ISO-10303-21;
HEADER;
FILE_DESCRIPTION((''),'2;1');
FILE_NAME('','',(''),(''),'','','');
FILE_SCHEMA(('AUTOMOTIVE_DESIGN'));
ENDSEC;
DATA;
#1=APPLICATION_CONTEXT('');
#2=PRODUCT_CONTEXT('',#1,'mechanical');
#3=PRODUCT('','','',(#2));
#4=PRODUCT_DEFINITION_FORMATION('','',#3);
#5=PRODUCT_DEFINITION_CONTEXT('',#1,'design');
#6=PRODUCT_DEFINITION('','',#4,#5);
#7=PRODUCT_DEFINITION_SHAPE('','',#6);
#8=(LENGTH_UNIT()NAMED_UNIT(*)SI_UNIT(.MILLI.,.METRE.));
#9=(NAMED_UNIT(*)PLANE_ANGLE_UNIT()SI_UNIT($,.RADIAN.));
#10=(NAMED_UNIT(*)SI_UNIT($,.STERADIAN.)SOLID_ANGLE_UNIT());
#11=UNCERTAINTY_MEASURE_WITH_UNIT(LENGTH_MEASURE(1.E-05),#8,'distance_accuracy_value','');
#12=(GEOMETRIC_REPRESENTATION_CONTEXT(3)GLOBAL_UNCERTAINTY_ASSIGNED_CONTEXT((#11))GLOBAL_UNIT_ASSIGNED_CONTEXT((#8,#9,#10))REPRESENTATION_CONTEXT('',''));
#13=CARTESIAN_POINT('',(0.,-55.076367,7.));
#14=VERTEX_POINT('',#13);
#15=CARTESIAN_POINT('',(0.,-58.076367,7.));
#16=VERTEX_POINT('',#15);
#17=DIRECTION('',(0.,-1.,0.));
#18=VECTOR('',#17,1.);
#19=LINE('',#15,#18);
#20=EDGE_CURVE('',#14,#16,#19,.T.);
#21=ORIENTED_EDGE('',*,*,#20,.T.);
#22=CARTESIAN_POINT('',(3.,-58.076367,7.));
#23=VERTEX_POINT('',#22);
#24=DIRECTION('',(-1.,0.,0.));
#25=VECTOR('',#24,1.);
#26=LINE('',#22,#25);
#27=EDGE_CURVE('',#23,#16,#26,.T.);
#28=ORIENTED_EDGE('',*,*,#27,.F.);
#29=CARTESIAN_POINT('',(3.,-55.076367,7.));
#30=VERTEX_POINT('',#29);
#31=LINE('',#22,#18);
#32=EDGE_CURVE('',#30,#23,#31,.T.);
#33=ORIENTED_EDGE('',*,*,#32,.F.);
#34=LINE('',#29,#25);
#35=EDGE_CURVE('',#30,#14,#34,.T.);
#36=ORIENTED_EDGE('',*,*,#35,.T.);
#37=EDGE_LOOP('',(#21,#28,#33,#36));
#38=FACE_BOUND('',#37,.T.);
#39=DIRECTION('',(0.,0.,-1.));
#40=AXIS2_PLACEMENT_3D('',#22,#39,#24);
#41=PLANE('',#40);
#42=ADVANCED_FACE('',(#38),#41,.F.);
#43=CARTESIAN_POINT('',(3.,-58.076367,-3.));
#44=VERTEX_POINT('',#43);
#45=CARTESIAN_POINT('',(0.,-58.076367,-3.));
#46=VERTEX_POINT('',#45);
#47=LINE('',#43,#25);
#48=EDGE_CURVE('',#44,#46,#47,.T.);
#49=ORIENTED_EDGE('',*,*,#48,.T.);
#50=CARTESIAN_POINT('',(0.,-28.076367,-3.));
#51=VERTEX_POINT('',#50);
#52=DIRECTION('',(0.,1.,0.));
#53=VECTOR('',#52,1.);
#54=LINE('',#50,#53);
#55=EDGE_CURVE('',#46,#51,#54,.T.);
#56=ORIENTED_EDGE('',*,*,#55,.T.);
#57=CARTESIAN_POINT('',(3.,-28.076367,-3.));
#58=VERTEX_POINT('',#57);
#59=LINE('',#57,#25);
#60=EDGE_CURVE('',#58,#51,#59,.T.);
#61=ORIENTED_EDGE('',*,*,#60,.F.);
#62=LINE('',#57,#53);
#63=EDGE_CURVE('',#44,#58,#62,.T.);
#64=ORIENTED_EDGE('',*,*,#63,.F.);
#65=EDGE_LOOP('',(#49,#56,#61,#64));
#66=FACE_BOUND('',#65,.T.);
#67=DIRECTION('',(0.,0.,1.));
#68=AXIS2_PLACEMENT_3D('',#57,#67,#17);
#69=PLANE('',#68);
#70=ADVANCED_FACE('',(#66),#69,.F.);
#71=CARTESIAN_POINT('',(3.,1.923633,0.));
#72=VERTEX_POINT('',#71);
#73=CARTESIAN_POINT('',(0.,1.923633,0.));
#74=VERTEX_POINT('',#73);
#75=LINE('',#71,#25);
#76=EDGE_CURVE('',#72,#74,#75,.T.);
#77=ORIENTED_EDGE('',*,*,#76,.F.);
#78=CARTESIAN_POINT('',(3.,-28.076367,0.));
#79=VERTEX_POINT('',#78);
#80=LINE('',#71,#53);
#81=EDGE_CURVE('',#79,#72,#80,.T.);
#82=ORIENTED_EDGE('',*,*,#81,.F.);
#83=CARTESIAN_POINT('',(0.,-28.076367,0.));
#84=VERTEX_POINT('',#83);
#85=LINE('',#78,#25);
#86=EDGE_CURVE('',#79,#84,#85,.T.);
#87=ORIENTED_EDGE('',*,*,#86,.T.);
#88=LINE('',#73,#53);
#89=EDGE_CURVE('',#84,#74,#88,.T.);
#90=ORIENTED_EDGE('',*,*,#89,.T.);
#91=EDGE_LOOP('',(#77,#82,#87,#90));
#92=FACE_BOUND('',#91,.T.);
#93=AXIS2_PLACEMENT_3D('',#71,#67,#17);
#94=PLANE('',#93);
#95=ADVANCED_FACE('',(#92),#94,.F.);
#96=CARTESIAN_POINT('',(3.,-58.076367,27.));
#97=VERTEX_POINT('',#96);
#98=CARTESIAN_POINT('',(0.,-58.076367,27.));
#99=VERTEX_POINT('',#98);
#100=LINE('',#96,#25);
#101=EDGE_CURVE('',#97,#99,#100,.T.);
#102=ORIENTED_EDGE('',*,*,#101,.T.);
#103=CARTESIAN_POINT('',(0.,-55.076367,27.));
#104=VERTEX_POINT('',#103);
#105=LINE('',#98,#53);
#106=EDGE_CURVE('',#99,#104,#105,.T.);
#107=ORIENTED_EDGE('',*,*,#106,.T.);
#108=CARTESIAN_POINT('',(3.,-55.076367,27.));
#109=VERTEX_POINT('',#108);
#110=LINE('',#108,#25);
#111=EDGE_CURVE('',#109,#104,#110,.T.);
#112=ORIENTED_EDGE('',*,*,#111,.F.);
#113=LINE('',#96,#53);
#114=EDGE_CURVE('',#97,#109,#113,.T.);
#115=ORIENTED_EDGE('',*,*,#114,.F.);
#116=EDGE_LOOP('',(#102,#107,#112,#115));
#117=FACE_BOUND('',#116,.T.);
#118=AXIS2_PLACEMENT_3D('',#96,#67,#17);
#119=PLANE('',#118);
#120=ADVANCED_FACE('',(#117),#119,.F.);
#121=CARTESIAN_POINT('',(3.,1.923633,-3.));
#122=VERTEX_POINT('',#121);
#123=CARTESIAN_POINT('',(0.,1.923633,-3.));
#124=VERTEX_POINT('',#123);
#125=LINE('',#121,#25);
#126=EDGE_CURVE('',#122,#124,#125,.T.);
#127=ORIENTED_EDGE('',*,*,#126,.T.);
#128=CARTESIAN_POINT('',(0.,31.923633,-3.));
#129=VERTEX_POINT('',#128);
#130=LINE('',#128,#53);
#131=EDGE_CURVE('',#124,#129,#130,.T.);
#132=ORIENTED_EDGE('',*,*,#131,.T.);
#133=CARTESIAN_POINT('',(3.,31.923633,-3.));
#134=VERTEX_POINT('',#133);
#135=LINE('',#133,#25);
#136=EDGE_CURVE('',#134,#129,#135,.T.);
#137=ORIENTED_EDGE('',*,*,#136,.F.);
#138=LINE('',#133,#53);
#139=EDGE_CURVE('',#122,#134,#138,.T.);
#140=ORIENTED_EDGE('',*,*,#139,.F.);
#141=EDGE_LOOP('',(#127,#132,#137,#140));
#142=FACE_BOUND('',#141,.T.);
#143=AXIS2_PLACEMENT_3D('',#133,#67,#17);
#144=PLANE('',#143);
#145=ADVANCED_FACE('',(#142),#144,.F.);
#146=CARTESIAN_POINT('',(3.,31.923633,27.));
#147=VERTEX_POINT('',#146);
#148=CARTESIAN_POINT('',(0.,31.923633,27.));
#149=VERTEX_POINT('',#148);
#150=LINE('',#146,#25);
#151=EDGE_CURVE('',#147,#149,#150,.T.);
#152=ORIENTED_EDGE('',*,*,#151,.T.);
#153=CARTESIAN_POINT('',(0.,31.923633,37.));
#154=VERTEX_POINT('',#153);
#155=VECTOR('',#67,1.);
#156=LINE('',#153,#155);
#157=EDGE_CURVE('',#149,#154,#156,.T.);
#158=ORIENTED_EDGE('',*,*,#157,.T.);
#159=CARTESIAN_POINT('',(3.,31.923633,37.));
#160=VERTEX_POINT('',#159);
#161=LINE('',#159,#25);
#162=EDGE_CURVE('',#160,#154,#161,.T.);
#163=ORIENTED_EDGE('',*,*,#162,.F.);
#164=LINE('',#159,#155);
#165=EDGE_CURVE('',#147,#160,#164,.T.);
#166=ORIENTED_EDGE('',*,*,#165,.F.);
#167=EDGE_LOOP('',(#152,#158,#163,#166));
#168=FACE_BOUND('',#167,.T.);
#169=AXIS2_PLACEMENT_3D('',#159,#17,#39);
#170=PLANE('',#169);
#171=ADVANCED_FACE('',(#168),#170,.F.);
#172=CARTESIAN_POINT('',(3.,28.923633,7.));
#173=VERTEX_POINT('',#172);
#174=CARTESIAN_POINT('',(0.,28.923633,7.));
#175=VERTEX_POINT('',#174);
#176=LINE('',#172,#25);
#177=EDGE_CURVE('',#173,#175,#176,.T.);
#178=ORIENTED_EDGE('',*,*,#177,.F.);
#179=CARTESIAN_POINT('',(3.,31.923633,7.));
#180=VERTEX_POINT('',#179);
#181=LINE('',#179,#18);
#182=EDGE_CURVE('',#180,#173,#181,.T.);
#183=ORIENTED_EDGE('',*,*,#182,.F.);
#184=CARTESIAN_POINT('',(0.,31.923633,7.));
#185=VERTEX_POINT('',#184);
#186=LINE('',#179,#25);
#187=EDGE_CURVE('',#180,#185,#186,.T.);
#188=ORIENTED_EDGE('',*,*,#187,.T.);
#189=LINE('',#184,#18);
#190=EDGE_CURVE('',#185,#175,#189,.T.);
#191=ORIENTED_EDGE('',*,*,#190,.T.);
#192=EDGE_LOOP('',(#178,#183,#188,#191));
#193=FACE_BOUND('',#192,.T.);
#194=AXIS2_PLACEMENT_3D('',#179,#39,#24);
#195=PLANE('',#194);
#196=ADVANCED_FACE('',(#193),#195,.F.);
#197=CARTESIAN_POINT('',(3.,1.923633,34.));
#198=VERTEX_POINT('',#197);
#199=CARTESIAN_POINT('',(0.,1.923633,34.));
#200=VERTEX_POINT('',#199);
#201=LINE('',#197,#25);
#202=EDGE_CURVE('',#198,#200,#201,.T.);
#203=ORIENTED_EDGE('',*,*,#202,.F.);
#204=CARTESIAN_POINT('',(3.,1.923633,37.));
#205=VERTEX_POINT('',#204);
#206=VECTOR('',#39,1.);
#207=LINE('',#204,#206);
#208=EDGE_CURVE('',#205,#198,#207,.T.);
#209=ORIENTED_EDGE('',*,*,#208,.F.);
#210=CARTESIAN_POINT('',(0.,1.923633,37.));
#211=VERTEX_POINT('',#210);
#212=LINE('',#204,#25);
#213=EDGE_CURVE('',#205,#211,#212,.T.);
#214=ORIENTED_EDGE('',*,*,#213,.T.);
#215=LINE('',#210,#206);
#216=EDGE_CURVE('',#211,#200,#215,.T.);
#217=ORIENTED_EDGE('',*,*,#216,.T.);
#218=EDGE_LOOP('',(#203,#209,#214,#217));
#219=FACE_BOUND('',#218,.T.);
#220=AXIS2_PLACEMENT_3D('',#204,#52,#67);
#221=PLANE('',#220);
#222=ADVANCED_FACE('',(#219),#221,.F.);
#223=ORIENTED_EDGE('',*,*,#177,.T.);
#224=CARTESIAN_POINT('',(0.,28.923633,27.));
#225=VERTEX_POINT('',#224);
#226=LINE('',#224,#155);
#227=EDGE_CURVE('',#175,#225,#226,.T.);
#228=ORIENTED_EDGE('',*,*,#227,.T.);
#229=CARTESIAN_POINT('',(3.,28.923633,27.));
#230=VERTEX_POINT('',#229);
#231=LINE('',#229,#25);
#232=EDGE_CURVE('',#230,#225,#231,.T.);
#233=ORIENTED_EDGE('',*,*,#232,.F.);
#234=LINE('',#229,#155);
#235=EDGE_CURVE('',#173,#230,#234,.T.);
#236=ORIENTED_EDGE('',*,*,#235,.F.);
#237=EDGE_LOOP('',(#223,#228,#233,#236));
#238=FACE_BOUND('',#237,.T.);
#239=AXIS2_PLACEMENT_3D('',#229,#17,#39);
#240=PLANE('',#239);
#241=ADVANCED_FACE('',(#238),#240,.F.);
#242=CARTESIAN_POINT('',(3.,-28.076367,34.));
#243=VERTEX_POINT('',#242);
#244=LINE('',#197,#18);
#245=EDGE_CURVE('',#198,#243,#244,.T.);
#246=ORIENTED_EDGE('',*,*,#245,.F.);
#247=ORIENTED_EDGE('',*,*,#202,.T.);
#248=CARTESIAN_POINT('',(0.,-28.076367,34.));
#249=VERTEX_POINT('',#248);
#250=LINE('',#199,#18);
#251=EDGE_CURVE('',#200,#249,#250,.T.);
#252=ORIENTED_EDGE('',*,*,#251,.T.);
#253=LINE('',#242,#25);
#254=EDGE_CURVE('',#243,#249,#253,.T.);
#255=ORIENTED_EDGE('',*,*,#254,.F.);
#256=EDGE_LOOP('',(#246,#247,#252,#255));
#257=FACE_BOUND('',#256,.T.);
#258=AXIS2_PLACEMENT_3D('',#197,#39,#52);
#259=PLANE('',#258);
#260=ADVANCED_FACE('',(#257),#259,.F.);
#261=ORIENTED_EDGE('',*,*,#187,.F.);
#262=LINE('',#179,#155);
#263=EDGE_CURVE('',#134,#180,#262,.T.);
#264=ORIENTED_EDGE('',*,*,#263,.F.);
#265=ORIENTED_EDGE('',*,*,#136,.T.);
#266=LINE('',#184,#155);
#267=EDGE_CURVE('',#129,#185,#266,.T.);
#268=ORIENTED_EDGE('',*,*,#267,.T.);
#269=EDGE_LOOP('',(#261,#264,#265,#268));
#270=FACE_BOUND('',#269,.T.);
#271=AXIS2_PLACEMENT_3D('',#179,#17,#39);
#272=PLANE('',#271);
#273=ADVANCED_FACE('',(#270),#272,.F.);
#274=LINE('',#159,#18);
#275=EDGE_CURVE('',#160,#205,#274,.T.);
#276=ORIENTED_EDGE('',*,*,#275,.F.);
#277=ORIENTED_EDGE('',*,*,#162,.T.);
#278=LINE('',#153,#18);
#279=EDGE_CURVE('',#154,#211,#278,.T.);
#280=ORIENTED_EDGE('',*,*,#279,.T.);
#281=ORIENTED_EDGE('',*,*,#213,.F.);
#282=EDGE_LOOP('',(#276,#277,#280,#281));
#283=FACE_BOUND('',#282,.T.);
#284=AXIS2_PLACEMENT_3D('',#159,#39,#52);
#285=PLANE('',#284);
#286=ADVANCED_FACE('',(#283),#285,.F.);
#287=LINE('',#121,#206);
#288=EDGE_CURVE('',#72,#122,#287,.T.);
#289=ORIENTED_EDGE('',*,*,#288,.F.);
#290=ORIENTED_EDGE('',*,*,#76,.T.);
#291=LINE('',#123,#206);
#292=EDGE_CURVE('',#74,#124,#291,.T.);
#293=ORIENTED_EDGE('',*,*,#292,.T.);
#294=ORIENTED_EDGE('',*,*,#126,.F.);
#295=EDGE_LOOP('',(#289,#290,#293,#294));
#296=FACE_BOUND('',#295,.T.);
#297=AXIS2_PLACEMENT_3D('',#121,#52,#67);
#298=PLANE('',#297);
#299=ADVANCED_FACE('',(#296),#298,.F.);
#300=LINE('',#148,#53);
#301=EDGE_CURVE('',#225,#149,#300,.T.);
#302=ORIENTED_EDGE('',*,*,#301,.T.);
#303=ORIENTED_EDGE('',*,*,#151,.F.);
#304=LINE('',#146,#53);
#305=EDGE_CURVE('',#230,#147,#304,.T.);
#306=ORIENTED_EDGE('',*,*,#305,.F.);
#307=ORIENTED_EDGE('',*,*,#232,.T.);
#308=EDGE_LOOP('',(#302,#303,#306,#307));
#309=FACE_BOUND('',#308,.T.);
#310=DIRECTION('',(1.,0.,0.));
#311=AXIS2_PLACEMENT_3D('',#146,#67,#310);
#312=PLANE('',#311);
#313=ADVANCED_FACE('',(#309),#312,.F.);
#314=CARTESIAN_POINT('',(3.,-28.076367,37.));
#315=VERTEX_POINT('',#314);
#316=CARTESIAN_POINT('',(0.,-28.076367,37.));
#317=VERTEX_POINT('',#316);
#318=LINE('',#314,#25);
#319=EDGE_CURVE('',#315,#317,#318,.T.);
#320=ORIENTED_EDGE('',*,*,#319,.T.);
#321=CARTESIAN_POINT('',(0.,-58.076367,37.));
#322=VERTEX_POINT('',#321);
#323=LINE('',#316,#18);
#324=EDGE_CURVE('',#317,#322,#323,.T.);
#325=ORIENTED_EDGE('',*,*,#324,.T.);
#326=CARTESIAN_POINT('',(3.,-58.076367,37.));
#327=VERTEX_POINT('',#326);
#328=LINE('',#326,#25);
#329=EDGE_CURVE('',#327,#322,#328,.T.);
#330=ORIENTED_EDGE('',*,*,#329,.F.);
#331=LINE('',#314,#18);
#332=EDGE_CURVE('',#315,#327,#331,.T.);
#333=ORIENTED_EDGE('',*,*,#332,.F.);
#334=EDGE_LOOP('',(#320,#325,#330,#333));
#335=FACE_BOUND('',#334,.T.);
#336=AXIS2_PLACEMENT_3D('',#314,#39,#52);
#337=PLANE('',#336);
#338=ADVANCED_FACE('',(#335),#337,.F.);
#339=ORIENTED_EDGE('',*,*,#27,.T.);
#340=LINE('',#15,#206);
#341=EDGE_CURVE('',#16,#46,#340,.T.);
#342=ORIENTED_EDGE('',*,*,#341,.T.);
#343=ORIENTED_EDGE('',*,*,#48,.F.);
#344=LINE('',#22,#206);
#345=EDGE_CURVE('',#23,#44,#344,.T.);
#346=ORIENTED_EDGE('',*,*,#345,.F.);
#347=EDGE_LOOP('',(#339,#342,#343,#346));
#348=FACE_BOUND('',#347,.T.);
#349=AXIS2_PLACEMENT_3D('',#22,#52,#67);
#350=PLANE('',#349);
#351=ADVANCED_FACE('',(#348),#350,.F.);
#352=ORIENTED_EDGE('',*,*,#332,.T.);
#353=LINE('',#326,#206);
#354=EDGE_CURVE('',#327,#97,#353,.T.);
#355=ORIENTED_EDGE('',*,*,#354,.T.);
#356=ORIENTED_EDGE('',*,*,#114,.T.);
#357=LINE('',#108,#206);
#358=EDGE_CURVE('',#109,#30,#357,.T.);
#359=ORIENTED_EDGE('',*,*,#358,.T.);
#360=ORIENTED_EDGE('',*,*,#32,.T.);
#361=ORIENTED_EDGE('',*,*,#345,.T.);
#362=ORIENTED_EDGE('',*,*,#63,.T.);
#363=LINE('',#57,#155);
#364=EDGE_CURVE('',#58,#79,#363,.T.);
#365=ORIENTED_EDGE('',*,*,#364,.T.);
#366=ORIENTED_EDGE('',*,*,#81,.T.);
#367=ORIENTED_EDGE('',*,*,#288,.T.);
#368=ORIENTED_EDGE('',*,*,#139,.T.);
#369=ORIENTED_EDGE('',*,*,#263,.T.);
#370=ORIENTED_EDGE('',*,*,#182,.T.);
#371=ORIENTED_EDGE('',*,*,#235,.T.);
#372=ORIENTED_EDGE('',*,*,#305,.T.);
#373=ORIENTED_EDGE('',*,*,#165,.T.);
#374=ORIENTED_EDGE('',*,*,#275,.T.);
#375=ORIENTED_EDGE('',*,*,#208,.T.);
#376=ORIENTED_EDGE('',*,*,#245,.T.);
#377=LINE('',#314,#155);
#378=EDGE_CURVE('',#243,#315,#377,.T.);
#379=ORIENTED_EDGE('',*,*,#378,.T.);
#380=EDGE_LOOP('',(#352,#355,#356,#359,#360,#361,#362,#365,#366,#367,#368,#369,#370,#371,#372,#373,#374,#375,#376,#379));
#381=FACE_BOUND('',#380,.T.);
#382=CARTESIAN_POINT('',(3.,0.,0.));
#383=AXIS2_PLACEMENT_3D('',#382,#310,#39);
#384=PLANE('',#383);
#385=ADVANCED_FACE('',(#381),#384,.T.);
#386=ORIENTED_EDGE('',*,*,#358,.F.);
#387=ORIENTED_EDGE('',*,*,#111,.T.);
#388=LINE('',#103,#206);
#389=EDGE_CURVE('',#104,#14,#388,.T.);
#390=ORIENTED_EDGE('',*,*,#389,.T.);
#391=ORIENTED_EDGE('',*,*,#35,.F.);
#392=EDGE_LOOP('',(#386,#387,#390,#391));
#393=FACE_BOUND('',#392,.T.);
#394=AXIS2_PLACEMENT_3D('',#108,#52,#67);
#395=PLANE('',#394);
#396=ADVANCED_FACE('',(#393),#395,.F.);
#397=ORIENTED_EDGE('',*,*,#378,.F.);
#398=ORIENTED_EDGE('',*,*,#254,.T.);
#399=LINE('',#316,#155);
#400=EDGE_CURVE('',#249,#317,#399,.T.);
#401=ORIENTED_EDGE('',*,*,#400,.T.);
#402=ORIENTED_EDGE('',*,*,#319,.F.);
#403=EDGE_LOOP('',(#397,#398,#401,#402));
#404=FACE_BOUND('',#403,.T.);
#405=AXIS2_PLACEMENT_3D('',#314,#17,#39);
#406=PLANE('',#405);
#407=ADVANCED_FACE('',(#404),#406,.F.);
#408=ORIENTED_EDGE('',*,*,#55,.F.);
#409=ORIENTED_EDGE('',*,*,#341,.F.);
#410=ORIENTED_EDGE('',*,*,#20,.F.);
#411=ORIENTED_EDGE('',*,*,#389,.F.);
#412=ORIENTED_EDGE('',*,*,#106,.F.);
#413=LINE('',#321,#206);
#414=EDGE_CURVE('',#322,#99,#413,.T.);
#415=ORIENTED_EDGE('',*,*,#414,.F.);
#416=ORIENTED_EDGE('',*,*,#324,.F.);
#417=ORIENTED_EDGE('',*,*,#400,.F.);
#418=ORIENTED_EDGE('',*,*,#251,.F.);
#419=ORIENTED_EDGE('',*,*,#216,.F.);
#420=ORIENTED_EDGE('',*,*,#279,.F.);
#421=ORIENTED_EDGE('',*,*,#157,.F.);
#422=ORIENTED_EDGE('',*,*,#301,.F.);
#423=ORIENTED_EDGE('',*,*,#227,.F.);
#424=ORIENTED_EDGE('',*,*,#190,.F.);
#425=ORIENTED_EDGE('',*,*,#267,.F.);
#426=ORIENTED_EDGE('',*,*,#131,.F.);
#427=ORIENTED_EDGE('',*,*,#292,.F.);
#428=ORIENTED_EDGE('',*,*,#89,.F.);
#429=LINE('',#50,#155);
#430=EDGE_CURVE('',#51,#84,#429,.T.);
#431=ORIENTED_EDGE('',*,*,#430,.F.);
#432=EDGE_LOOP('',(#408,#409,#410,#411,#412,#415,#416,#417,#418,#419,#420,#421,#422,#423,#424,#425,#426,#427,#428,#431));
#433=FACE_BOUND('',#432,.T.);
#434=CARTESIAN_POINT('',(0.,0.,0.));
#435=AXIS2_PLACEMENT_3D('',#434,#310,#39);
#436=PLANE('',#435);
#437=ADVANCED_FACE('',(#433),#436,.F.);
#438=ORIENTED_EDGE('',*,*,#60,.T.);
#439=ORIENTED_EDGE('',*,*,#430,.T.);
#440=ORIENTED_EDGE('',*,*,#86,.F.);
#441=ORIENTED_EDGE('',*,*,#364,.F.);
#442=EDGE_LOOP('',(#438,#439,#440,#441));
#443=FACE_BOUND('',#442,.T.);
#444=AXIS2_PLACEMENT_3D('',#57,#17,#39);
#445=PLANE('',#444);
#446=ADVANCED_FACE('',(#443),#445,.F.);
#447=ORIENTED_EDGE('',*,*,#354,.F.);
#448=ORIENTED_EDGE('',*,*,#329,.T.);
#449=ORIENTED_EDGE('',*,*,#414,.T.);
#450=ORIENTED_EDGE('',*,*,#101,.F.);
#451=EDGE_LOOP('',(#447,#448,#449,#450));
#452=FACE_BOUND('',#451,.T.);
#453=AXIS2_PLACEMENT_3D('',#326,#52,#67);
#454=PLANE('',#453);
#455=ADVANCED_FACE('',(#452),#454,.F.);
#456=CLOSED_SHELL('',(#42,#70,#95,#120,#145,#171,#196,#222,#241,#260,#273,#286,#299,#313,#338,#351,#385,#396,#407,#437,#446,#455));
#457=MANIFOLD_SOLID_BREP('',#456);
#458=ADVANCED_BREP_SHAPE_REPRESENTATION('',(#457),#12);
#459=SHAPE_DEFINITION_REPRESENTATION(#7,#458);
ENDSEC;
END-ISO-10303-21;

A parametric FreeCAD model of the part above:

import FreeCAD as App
import Part
import Sketcher
from FreeCAD import Vector

doc = App.newDocument("Part")
body = doc.addObject("PartDesign::Body", "Body")

sketch1 = body.newObject("Sketcher::SketchObject", "Sketch")
sketch1.AttachmentSupport = (doc.getObject("YZ_Plane"), [""])
sketch1.MapMode = "FlatFace"
sketch1.addGeometry([
    Part.LineSegment(Vector(31.9, -3, 0), Vector(31.9, 7, 0)),
    Part.LineSegment(Vector(31.9, 7, 0), Vector(28.9, 7, 0)),
    Part.LineSegment(Vector(28.9, 7, 0), Vector(28.9, 27, 0)),
    Part.LineSegment(Vector(28.9, 27, 0), Vector(31.9, 27, 0)),
    Part.LineSegment(Vector(31.9, 27, 0), Vector(31.9, 37, 0)),
    Part.LineSegment(Vector(31.9, 37, 0), Vector(1.9, 37, 0)),
    Part.LineSegment(Vector(1.9, 37, 0), Vector(1.9, 34, 0)),
    Part.LineSegment(Vector(1.9, 34, 0), Vector(-28.1, 34, 0)),
    Part.LineSegment(Vector(-28.1, 34, 0), Vector(-28.1, 37, 0)),
    Part.LineSegment(Vector(-28.1, 37, 0), Vector(-58.1, 37, 0)),
    Part.LineSegment(Vector(-58.1, 37, 0), Vector(-58.1, 27, 0)),
    Part.LineSegment(Vector(-58.1, 27, 0), Vector(-55.1, 27, 0)),
    Part.LineSegment(Vector(-55.1, 27, 0), Vector(-55.1, 7, 0)),
    Part.LineSegment(Vector(-55.1, 7, 0), Vector(-58.1, 7, 0)),
    Part.LineSegment(Vector(-58.1, 7, 0), Vector(-58.1, -3, 0)),
    Part.LineSegment(Vector(-58.1, -3, 0), Vector(-28.1, -3, 0)),
    Part.LineSegment(Vector(-28.1, -3, 0), Vector(-28.1, 0, 0)),
    Part.LineSegment(Vector(-28.1, 0, 0), Vector(1.9, 0, 0)),
    Part.LineSegment(Vector(1.9, 0, 0), Vector(1.9, -3, 0)),
    Part.LineSegment(Vector(1.9, -3, 0), Vector(31.9, -3, 0)),
], False)
sketch1.addConstraint([
    Sketcher.Constraint("Coincident", 0, 2, 1, 1),
    Sketcher.Constraint("Coincident", 1, 2, 2, 1),
    Sketcher.Constraint("Coincident", 2, 2, 3, 1),
    Sketcher.Constraint("Coincident", 3, 2, 4, 1),
    Sketcher.Constraint("Coincident", 4, 2, 5, 1),
    Sketcher.Constraint("Coincident", 5, 2, 6, 1),
    Sketcher.Constraint("Coincident", 6, 2, 7, 1),
    Sketcher.Constraint("Coincident", 7, 2, 8, 1),
    Sketcher.Constraint("Coincident", 8, 2, 9, 1),
    Sketcher.Constraint("Coincident", 9, 2, 10, 1),
    Sketcher.Constraint("Coincident", 10, 2, 11, 1),
    Sketcher.Constraint("Coincident", 11, 2, 12, 1),
    Sketcher.Constraint("Coincident", 12, 2, 13, 1),
    Sketcher.Constraint("Coincident", 13, 2, 14, 1),
    Sketcher.Constraint("Coincident", 14, 2, 15, 1),
    Sketcher.Constraint("Coincident", 15, 2, 16, 1),
    Sketcher.Constraint("Coincident", 16, 2, 17, 1),
    Sketcher.Constraint("Coincident", 17, 2, 18, 1),
    Sketcher.Constraint("Coincident", 18, 2, 19, 1),
    Sketcher.Constraint("Coincident", 19, 2, 0, 1),
    Sketcher.Constraint("Vertical", 0),
    Sketcher.Constraint("Horizontal", 1),
    Sketcher.Constraint("Vertical", 2),
    Sketcher.Constraint("Horizontal", 3),
    Sketcher.Constraint("Vertical", 4),
    Sketcher.Constraint("Horizontal", 5),
    Sketcher.Constraint("Vertical", 6),
    Sketcher.Constraint("Horizontal", 7),
    Sketcher.Constraint("Vertical", 8),
    Sketcher.Constraint("Horizontal", 9),
    Sketcher.Constraint("Vertical", 10),
    Sketcher.Constraint("Horizontal", 11),
    Sketcher.Constraint("Vertical", 12),
    Sketcher.Constraint("Horizontal", 13),
    Sketcher.Constraint("Vertical", 14),
    Sketcher.Constraint("Horizontal", 15),
    Sketcher.Constraint("Vertical", 16),
    Sketcher.Constraint("Horizontal", 17),
    Sketcher.Constraint("Vertical", 18),
    Sketcher.Constraint("Horizontal", 19),
    Sketcher.Constraint("PointOnObject", 16, 2, -1),
    Sketcher.Constraint("Horizontal", 5, 2, 8, 2),
    Sketcher.Constraint("Horizontal", 3, 2, 10, 2),
    Sketcher.Constraint("Horizontal", 1, 2, 12, 2),
    Sketcher.Constraint("Horizontal", 15, 2, 18, 2),
    Sketcher.Constraint("Vertical", 0, 2, 3, 2),
    Sketcher.Constraint("Vertical", 10, 2, 13, 2),
    Sketcher.Constraint("Vertical", 8, 2, 15, 2),
    Sketcher.Constraint("Vertical", 6, 2, 17, 2),
    Sketcher.Constraint("Equal", 5, 7),
    Sketcher.Constraint("Equal", 7, 9),
    Sketcher.Constraint("Equal", 3, 11),
    Sketcher.Constraint("Equal", 0, 4),
    Sketcher.Constraint("Equal", 13, 6),
    Sketcher.Constraint("Equal", 8, 16),
    Sketcher.Constraint("DistanceX", 1, 2, 1, 1, 3.0),
    Sketcher.Constraint("DistanceX", 5, 2, 5, 1, 30.0),
    Sketcher.Constraint("DistanceY", 0, 1, 0, 2, 10.0),
    Sketcher.Constraint("DistanceY", 2, 1, 2, 2, 20.0),
    Sketcher.Constraint("DistanceX", -1, 1, 0, 2, 31.923633),
])
pad1 = body.newObject("PartDesign::Pad", "Pad")
pad1.Profile = sketch1
pad1.Length = 3

doc.recompute()
